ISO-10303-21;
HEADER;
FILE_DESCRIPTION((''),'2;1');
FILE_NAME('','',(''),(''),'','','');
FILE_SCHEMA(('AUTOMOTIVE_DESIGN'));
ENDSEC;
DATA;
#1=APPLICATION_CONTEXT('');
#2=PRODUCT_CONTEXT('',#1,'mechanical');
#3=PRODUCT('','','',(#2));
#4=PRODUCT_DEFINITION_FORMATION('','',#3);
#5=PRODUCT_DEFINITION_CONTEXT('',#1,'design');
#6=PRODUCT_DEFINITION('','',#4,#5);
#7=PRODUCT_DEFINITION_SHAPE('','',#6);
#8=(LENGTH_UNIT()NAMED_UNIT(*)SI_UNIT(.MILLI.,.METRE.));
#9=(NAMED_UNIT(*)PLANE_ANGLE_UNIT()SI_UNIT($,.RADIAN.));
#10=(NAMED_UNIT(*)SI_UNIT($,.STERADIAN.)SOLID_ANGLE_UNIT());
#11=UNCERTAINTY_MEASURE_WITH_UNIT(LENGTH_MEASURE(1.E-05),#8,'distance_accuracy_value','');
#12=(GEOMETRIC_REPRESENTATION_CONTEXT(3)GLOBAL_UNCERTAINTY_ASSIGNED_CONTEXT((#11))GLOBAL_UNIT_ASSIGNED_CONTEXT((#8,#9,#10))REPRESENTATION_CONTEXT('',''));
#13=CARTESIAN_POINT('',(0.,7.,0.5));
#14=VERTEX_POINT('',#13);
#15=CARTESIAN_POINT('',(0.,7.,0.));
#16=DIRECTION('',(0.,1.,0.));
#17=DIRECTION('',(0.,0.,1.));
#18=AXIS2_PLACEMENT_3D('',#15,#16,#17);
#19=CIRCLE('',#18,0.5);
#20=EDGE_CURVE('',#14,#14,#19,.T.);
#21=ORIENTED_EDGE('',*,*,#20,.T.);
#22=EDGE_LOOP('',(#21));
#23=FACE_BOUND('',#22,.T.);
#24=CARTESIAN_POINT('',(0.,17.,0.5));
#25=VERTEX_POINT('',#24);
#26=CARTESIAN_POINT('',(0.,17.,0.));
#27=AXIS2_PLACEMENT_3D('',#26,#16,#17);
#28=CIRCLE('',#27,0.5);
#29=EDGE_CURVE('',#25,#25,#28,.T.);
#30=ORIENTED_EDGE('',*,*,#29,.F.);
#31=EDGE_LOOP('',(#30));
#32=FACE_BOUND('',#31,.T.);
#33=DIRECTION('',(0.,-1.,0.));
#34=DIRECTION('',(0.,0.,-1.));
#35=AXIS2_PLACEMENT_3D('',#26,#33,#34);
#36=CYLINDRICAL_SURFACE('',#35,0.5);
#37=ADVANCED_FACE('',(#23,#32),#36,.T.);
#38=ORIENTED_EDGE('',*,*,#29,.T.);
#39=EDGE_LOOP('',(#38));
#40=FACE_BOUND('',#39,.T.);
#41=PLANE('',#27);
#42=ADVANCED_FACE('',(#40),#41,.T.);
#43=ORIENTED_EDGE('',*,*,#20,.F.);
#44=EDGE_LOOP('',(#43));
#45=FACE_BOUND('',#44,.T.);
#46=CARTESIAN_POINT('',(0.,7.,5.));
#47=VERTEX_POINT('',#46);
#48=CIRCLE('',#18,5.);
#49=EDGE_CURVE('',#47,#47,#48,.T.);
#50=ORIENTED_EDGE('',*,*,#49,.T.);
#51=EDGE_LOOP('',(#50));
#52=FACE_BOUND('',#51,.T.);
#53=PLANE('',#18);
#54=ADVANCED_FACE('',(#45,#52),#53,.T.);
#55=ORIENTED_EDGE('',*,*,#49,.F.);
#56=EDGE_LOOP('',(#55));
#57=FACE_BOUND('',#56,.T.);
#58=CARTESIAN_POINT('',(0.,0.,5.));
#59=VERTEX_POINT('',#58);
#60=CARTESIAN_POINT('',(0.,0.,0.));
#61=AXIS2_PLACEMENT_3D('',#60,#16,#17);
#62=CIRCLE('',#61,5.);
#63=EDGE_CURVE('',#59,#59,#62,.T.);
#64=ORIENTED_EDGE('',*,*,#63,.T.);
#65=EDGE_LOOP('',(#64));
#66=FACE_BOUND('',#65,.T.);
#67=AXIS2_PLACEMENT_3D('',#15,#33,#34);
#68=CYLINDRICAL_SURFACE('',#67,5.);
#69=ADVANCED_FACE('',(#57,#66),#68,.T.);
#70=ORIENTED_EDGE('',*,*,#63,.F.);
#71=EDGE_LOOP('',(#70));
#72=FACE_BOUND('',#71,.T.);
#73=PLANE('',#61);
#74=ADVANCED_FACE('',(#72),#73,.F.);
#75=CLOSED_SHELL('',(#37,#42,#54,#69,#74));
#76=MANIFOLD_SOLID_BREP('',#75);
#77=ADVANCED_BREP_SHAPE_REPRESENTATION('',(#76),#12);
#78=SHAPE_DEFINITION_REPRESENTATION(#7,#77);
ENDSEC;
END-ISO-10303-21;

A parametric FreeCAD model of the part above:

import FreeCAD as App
import Part
import Sketcher

V = App.Vector

doc = App.newDocument("Part")
body = doc.addObject("PartDesign::Body", "Body")

sketch1 = body.newObject("Sketcher::SketchObject", "Sketch")
sketch1.AttachmentSupport = (doc.getObject("XZ_Plane"), [""])
sketch1.MapMode = "FlatFace"
sketch1.addGeometry(Part.Circle(V(0, 0, 0), V(0, 0, 1), 5), False)
sketch1.addConstraint(Sketcher.Constraint("Coincident", 0, 3, -1, 1))
sketch1.addConstraint(Sketcher.Constraint("Diameter", 0, 10.0))
pad1 = body.newObject("PartDesign::Pad", "Pad")
pad1.Profile = sketch1
pad1.Length = 7
pad1.Reversed = True

sketch2 = body.newObject("Sketcher::SketchObject", "Sketch001")
sketch2.AttachmentSupport = (doc.getObject("XZ_Plane"), [""])
sketch2.MapMode = "FlatFace"
sketch2.AttachmentOffset = App.Placement(V(0, 0, -7), App.Rotation())
sketch2.addGeometry(Part.Circle(V(0, 0, 0), V(0, 0, 1), 0.5), False)
sketch2.addConstraint(Sketcher.Constraint("Coincident", 0, 3, -1, 1))
sketch2.addConstraint(Sketcher.Constraint("Diameter", 0, 1.0))
pad2 = body.newObject("PartDesign::Pad", "Pad001")
pad2.Profile = sketch2
pad2.Length = 10
pad2.Reversed = True

doc.recompute()
